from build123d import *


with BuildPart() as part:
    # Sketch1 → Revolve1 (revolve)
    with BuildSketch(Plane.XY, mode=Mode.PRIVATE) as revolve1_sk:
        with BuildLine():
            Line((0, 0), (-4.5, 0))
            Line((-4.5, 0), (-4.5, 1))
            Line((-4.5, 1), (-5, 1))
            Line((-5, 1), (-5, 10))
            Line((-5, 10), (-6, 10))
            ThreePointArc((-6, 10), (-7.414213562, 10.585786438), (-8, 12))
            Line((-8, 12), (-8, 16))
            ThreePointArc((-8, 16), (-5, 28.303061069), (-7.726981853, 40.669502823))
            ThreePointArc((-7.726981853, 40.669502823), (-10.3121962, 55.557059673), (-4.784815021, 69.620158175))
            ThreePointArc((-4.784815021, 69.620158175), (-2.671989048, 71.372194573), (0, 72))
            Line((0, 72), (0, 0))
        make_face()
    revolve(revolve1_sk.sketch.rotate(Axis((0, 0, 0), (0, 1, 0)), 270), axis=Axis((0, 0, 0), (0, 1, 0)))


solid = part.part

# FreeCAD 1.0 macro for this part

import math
import FreeCAD as App
import Part
import Sketcher
from FreeCAD import Vector
Q = App.Units.Quantity

doc = App.newDocument("Part")
body = doc.addObject("PartDesign::Body", "Body")

# Sketch on XY plane
sketch1 = body.newObject("Sketcher::SketchObject", "Sketch")
sketch1.AttachmentSupport = (doc.getObject("XY_Plane"), [""])
sketch1.MapMode = "FlatFace"
sketch1.addGeometry([
    Part.LineSegment(Vector(-4.5, 0, 0), Vector(0, 0, 0)),  # 0
    Part.LineSegment(Vector(0, 0, 0), Vector(0, 72, 0)),  # 1
    Part.ArcOfCircle(Part.Circle(Vector(0, 66, 0), Vector(0, 0, 1), 6), math.radians(90), math.radians(142.889101)),  # 2
    Part.ArcOfCircle(Part.Circle(Vector(17.544322, 52.726087, 0), Vector(0, 0, 1), 28), math.radians(142.889101), math.radians(205.505154)),  # 3
    Part.ArcOfCircle(Part.Circle(Vector(-32.998285, 28.612919, 0), Vector(0, 0, 1), 28), math.radians(-26.77329), math.radians(25.505154)),  # 4
    Part.LineSegment(Vector(-8, 16, 0), Vector(-8, 12, 0)),  # 5
    Part.ArcOfCircle(Part.Circle(Vector(-6, 12, 0), Vector(0, 0, 1), 2), math.radians(-180), math.radians(-90)),  # 6
    Part.LineSegment(Vector(-6, 10, 0), Vector(-5, 10, 0)),  # 7
    Part.LineSegment(Vector(-5, 10, 0), Vector(-5, 1, 0)),  # 8
    Part.LineSegment(Vector(-5, 1, 0), Vector(-4.5, 1, 0)),  # 9
    Part.LineSegment(Vector(-4.5, 1, 0), Vector(-4.5, 0, 0)),  # 10
], False)
sketch1.addConstraint([
    Sketcher.Constraint("Coincident", 0, 2, 1, 1),
    Sketcher.Constraint("Coincident", 1, 2, 2, 1),
    Sketcher.Constraint("Tangent", 2, 2, 3, 1),
    Sketcher.Constraint("Tangent", 3, 2, 4, 2),
    Sketcher.Constraint("Coincident", 4, 1, 5, 1),
    Sketcher.Constraint("Tangent", 5, 2, 6, 1),
    Sketcher.Constraint("Tangent", 6, 2, 7, 1),
    Sketcher.Constraint("Coincident", 7, 2, 8, 1),
    Sketcher.Constraint("Coincident", 8, 2, 9, 1),
    Sketcher.Constraint("Coincident", 9, 2, 10, 1),
    Sketcher.Constraint("Coincident", 10, 2, 0, 1),
    Sketcher.Constraint("Horizontal", 0),
    Sketcher.Constraint("Vertical", 1),
    Sketcher.Constraint("Vertical", 5),
    Sketcher.Constraint("Horizontal", 7),
    Sketcher.Constraint("Vertical", 8),
    Sketcher.Constraint("Horizontal", 9),
    Sketcher.Constraint("Vertical", 10),
    Sketcher.Constraint("Coincident", 0, 2, -1, 1),
    Sketcher.Constraint("Equal", 3, 4),
    Sketcher.Constraint("PointOnObject", 2, 3, -2),
    Sketcher.Constraint("Equal", 7, 10),
    Sketcher.Constraint("Radius", 2, Q("6 mm")),
    Sketcher.Constraint("Radius", 3, Q("28 mm")),
    Sketcher.Constraint("Radius", 6, Q("2 mm")),
    Sketcher.Constraint("DistanceX", 7, 1, 7, 2, Q("1 mm")),
    Sketcher.Constraint("DistanceY", 1, 1, 1, 2, Q("72 mm")),
    Sketcher.Constraint("DistanceY", 5, 2, 5, 1, Q("4 mm")),
    Sketcher.Constraint("DistanceY", 8, 2, 8, 1, Q("9 mm")),
    Sketcher.Constraint("DistanceX", 0, 1, 0, 2, Q("4.5 mm")),
    Sketcher.Constraint("DistanceX", 9, 1, 9, 2, Q("0.5 mm")),
    Sketcher.Constraint("DistanceX", -1, 1, 3, 3, Q("17.544322 mm")),
])
revolution = body.newObject("PartDesign::Revolution", "Revolution")
revolution.Profile = sketch1
revolution.ReferenceAxis = (sketch1, ["V_Axis"])
revolution.Angle = 360

doc.recompute()
